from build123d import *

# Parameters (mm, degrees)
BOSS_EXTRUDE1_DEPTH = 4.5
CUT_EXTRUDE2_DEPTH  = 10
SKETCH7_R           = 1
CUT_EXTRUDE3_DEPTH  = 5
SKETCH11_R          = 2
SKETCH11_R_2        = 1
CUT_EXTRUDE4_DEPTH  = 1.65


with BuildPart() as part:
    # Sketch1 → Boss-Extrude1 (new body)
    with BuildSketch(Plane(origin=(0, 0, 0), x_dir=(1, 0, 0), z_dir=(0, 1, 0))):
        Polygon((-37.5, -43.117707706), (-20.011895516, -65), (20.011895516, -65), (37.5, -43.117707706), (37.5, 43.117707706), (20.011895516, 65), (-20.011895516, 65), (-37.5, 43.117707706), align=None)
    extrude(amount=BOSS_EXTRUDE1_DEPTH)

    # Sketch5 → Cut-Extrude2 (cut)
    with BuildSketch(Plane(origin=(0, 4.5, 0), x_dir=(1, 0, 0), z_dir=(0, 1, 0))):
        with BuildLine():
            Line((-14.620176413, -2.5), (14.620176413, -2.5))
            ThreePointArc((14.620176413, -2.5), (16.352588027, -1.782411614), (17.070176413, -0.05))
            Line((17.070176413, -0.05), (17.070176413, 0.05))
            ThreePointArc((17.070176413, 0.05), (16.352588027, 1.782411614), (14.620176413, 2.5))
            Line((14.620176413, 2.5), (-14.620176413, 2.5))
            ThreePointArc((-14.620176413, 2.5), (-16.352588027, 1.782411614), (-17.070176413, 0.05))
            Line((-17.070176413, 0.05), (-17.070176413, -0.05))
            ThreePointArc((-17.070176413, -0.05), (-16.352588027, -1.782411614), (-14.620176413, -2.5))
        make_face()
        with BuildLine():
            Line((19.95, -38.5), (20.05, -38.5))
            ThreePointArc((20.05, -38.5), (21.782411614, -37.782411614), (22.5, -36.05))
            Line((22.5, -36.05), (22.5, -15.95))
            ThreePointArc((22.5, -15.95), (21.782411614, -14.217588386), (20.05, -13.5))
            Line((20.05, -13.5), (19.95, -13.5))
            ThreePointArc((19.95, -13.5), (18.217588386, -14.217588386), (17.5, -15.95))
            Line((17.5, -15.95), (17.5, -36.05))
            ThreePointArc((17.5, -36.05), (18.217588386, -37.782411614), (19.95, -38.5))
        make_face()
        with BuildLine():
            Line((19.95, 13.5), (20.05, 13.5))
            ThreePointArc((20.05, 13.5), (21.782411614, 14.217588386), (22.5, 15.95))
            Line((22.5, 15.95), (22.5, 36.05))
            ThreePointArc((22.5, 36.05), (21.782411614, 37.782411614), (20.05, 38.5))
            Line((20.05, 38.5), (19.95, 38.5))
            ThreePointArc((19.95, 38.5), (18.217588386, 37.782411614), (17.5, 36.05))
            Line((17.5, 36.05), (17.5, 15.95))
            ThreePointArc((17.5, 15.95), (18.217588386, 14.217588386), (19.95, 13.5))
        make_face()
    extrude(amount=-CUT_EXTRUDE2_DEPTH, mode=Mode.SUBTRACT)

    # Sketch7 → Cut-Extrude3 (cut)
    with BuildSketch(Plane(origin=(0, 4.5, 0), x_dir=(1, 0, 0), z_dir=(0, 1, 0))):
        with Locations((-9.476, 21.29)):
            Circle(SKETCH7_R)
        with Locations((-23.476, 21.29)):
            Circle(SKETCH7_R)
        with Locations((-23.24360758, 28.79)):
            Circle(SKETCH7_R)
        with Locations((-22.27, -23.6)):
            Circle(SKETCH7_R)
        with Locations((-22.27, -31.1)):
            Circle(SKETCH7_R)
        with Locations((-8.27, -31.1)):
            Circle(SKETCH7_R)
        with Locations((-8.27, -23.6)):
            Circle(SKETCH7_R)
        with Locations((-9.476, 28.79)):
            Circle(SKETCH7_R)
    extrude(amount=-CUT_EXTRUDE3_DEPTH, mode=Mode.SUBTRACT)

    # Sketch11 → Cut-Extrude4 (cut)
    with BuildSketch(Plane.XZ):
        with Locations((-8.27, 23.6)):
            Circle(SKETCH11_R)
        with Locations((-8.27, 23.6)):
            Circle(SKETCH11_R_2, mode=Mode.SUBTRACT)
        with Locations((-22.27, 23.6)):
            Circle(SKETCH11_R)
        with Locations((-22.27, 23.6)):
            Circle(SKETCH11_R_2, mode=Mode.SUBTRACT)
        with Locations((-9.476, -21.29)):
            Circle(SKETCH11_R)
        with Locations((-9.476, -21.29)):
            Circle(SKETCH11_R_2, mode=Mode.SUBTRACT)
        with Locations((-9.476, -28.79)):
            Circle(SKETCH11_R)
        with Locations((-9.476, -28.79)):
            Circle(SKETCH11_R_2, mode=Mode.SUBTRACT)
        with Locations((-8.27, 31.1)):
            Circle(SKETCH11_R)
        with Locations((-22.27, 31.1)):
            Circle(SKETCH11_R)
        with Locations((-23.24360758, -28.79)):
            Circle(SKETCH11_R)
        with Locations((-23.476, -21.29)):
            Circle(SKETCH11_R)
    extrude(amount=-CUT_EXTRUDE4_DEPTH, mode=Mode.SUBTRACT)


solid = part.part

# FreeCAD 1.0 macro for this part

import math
import FreeCAD as App
import Part
import Sketcher
from FreeCAD import Vector
Q = App.Units.Quantity

doc = App.newDocument("Part")
body = doc.addObject("PartDesign::Body", "Body")

sketch1 = body.newObject("Sketcher::SketchObject", "Sketch")
sketch1.AttachmentSupport = (doc.getObject("XZ_Plane"), [""])
sketch1.MapMode = "FlatFace"
sketch1.addGeometry(Part.LineSegment(Vector(-38, 43, 0), Vector(-20, 65, 0)), False)
sketch1.addGeometry(Part.LineSegment(Vector(-20, 65, 0), Vector(20, 65, 0)), False)
sketch1.addGeometry(Part.LineSegment(Vector(20, 65, 0), Vector(38, 43, 0)), False)
sketch1.addGeometry(Part.LineSegment(Vector(38, 43, 0), Vector(38, -43, 0)), False)
sketch1.addGeometry(Part.LineSegment(Vector(38, -43, 0), Vector(20, -65, 0)), False)
sketch1.addGeometry(Part.LineSegment(Vector(20, -65, 0), Vector(-20, -65, 0)), False)
sketch1.addGeometry(Part.LineSegment(Vector(-20, -65, 0), Vector(-38, -43, 0)), False)
sketch1.addGeometry(Part.LineSegment(Vector(-38, -43, 0), Vector(-38, 43, 0)), False)
sketch1.addConstraint(Sketcher.Constraint("Coincident", 0, 2, 1, 1))
sketch1.addConstraint(Sketcher.Constraint("Coincident", 1, 2, 2, 1))
sketch1.addConstraint(Sketcher.Constraint("Coincident", 2, 2, 3, 1))
sketch1.addConstraint(Sketcher.Constraint("Coincident", 3, 2, 4, 1))
sketch1.addConstraint(Sketcher.Constraint("Coincident", 4, 2, 5, 1))
sketch1.addConstraint(Sketcher.Constraint("Coincident", 5, 2, 6, 1))
sketch1.addConstraint(Sketcher.Constraint("Coincident", 6, 2, 7, 1))
sketch1.addConstraint(Sketcher.Constraint("Coincident", 7, 2, 0, 1))
sketch1.addConstraint(Sketcher.Constraint("Horizontal", 1))
sketch1.addConstraint(Sketcher.Constraint("Vertical", 3))
sketch1.addConstraint(Sketcher.Constraint("Horizontal", 5))
sketch1.addConstraint(Sketcher.Constraint("Vertical", 7))
sketch1.addConstraint(Sketcher.Constraint("Symmetric", 0, 2, 4, 2, -1, 1))
sketch1.addConstraint(Sketcher.Constraint("Symmetric", 2, 2, 6, 2, -1, 1))
sketch1.addConstraint(Sketcher.Constraint("Parallel", 0, 4))
sketch1.addConstraint(Sketcher.Constraint("Parallel", 2, 6))
sketch1.addConstraint(Sketcher.Constraint("Horizontal", 3, 2, 6, 2))
sketch1.addConstraint(Sketcher.Constraint("Vertical", 1, 2, 4, 2))
sketch1.addConstraint(Sketcher.Constraint("DistanceY", -1, 1, 0, 2, Q("65 mm")))
sketch1.addConstraint(Sketcher.Constraint("DistanceX", 6, 2, 3, 2, Q("75 mm")))
sketch1.addConstraint(Sketcher.Constraint("DistanceX", 1, 1, 1, 2, Q("40.023791 mm")))
sketch1.addConstraint(Sketcher.Constraint("DistanceY", 3, 2, 3, 1, Q("86.235415 mm")))
pad1 = body.newObject("PartDesign::Pad", "Pad")
pad1.Profile = sketch1
pad1.Length = 4.5
pad1.Reversed = True

sketch2 = body.newObject("Sketcher::SketchObject", "Sketch001")
sketch2.AttachmentSupport = (doc.getObject("XZ_Plane"), [""])
sketch2.MapMode = "FlatFace"
sketch2.AttachmentOffset = App.Placement(Vector(0, 0, -4.5), App.Rotation())
sketch2.addGeometry(Part.LineSegment(Vector(-14.62, 2.5, 0), Vector(14.62, 2.5, 0)), False)
sketch2.addGeometry(Part.ArcOfCircle(Part.Circle(Vector(14.62, 0.05, 0), Vector(0, 0, 1), 2.45), math.radians(0), math.radians(90)), False)
sketch2.addGeometry(Part.LineSegment(Vector(17.07, 0.05, 0), Vector(17.07, -0.05, 0)), False)
sketch2.addGeometry(Part.ArcOfCircle(Part.Circle(Vector(14.62, -0.05, 0), Vector(0, 0, 1), 2.45), math.radians(-90), math.radians(0)), False)
sketch2.addGeometry(Part.LineSegment(Vector(14.62, -2.5, 0), Vector(-14.62, -2.5, 0)), False)
sketch2.addGeometry(Part.ArcOfCircle(Part.Circle(Vector(-14.62, -0.05, 0), Vector(0, 0, 1), 2.45), math.radians(180), math.radians(270)), False)
sketch2.addGeometry(Part.LineSegment(Vector(-17.07, -0.05, 0), Vector(-17.07, 0.05, 0)), False)
sketch2.addGeometry(Part.ArcOfCircle(Part.Circle(Vector(-14.62, 0.05, 0), Vector(0, 0, 1), 2.45), math.radians(90), math.radians(180)), False)
sketch2.addGeometry(Part.LineSegment(Vector(19.95, 38.5, 0), Vector(20.05, 38.5, 0)), False)
sketch2.addGeometry(Part.ArcOfCircle(Part.Circle(Vector(20.05, 36.05, 0), Vector(0, 0, 1), 2.45), math.radians(0), math.radians(90)), False)
sketch2.addGeometry(Part.LineSegment(Vector(22.5, 36.05, 0), Vector(22.5, 15.95, 0)), False)
sketch2.addGeometry(Part.ArcOfCircle(Part.Circle(Vector(20.05, 15.95, 0), Vector(0, 0, 1), 2.45), math.radians(-90), math.radians(0)), False)
sketch2.addGeometry(Part.LineSegment(Vector(20.05, 13.5, 0), Vector(19.95, 13.5, 0)), False)
sketch2.addGeometry(Part.ArcOfCircle(Part.Circle(Vector(19.95, 15.95, 0), Vector(0, 0, 1), 2.45), math.radians(180), math.radians(270)), False)
sketch2.addGeometry(Part.LineSegment(Vector(17.5, 15.95, 0), Vector(17.5, 36.05, 0)), False)
sketch2.addGeometry(Part.ArcOfCircle(Part.Circle(Vector(19.95, 36.05, 0), Vector(0, 0, 1), 2.45), math.radians(90), math.radians(180)), False)
sketch2.addGeometry(Part.LineSegment(Vector(19.95, -13.5, 0), Vector(20.05, -13.5, 0)), False)
sketch2.addGeometry(Part.ArcOfCircle(Part.Circle(Vector(20.05, -15.95, 0), Vector(0, 0, 1), 2.45), math.radians(0), math.radians(90)), False)
sketch2.addGeometry(Part.LineSegment(Vector(22.5, -15.95, 0), Vector(22.5, -36.05, 0)), False)
sketch2.addGeometry(Part.ArcOfCircle(Part.Circle(Vector(20.05, -36.05, 0), Vector(0, 0, 1), 2.45), math.radians(-90), math.radians(0)), False)
sketch2.addGeometry(Part.LineSegment(Vector(20.05, -38.5, 0), Vector(19.95, -38.5, 0)), False)
sketch2.addGeometry(Part.ArcOfCircle(Part.Circle(Vector(19.95, -36.05, 0), Vector(0, 0, 1), 2.45), math.radians(180), math.radians(270)), False)
sketch2.addGeometry(Part.LineSegment(Vector(17.5, -36.05, 0), Vector(17.5, -15.95, 0)), False)
sketch2.addGeometry(Part.ArcOfCircle(Part.Circle(Vector(19.95, -15.95, 0), Vector(0, 0, 1), 2.45), math.radians(90), math.radians(180)), False)
sketch2.addConstraint(Sketcher.Constraint("Tangent", 0, 2, 1, 2))
sketch2.addConstraint(Sketcher.Constraint("Tangent", 1, 1, 2, 1))
sketch2.addConstraint(Sketcher.Constraint("Tangent", 2, 2, 3, 2))
sketch2.addConstraint(Sketcher.Constraint("Tangent", 3, 1, 4, 1))
sketch2.addConstraint(Sketcher.Constraint("Tangent", 4, 2, 5, 2))
sketch2.addConstraint(Sketcher.Constraint("Tangent", 5, 1, 6, 1))
sketch2.addConstraint(Sketcher.Constraint("Tangent", 6, 2, 7, 2))
sketch2.addConstraint(Sketcher.Constraint("Tangent", 7, 1, 0, 1))
sketch2.addConstraint(Sketcher.Constraint("Tangent", 8, 2, 9, 2))
sketch2.addConstraint(Sketcher.Constraint("Tangent", 9, 1, 10, 1))
sketch2.addConstraint(Sketcher.Constraint("Tangent", 10, 2, 11, 2))
sketch2.addConstraint(Sketcher.Constraint("Tangent", 11, 1, 12, 1))
sketch2.addConstraint(Sketcher.Constraint("Tangent", 12, 2, 13, 2))
sketch2.addConstraint(Sketcher.Constraint("Tangent", 13, 1, 14, 1))
sketch2.addConstraint(Sketcher.Constraint("Tangent", 14, 2, 15, 2))
sketch2.addConstraint(Sketcher.Constraint("Tangent", 15, 1, 8, 1))
sketch2.addConstraint(Sketcher.Constraint("Tangent", 16, 2, 17, 2))
sketch2.addConstraint(Sketcher.Constraint("Tangent", 17, 1, 18, 1))
sketch2.addConstraint(Sketcher.Constraint("Tangent", 18, 2, 19, 2))
sketch2.addConstraint(Sketcher.Constraint("Tangent", 19, 1, 20, 1))
sketch2.addConstraint(Sketcher.Constraint("Tangent", 20, 2, 21, 2))
sketch2.addConstraint(Sketcher.Constraint("Tangent", 21, 1, 22, 1))
sketch2.addConstraint(Sketcher.Constraint("Tangent", 22, 2, 23, 2))
sketch2.addConstraint(Sketcher.Constraint("Tangent", 23, 1, 16, 1))
sketch2.addConstraint(Sketcher.Constraint("Horizontal", 0))
sketch2.addConstraint(Sketcher.Constraint("Vertical", 2))
sketch2.addConstraint(Sketcher.Constraint("Horizontal", 4))
sketch2.addConstraint(Sketcher.Constraint("Vertical", 6))
sketch2.addConstraint(Sketcher.Constraint("Horizontal", 8))
sketch2.addConstraint(Sketcher.Constraint("Vertical", 10))
sketch2.addConstraint(Sketcher.Constraint("Horizontal", 12))
sketch2.addConstraint(Sketcher.Constraint("Vertical", 14))
sketch2.addConstraint(Sketcher.Constraint("Horizontal", 16))
sketch2.addConstraint(Sketcher.Constraint("Vertical", 18))
sketch2.addConstraint(Sketcher.Constraint("Horizontal", 20))
sketch2.addConstraint(Sketcher.Constraint("Vertical", 22))
sketch2.addConstraint(Sketcher.Constraint("Equal", 1, 3))
sketch2.addConstraint(Sketcher.Constraint("Equal", 3, 5))
sketch2.addConstraint(Sketcher.Constraint("Equal", 5, 7))
sketch2.addConstraint(Sketcher.Constraint("Equal", 7, 9))
sketch2.addConstraint(Sketcher.Constraint("Equal", 9, 11))
sketch2.addConstraint(Sketcher.Constraint("Equal", 11, 13))
sketch2.addConstraint(Sketcher.Constraint("Equal", 13, 15))
sketch2.addConstraint(Sketcher.Constraint("Equal", 15, 17))
sketch2.addConstraint(Sketcher.Constraint("Equal", 17, 19))
sketch2.addConstraint(Sketcher.Constraint("Equal", 19, 21))
sketch2.addConstraint(Sketcher.Constraint("Equal", 21, 23))
sketch2.addConstraint(Sketcher.Constraint("Symmetric", 1, 3, 5, 3, -1, 1))
sketch2.addConstraint(Sketcher.Constraint("Symmetric", 11, 3, 17, 3, -1))
sketch2.addConstraint(Sketcher.Constraint("Symmetric", 15, 3, 21, 3, -1))
sketch2.addConstraint(Sketcher.Constraint("Equal", 20, 2))
sketch2.addConstraint(Sketcher.Constraint("Radius", 1, Q("2.45 mm")))
sketch2.addConstraint(Sketcher.Constraint("DistanceX", 8, 1, 8, 2, Q("0.1 mm")))
sketch2.addConstraint(Sketcher.Constraint("DistanceY", 10, 2, 10, 1, Q("20.1 mm")))
sketch2.addConstraint(Sketcher.Constraint("DistanceY", 1, 3, 9, 3, Q("36 mm")))
sketch2.addConstraint(Sketcher.Constraint("DistanceX", -1, 1, 9, 1, Q("22.5 mm")))
sketch2.addConstraint(Sketcher.Constraint("DistanceX", 0, 1, 0, 2, Q("29.240353 mm")))
pocket1 = body.newObject("PartDesign::Pocket", "Pocket")
pocket1.Profile = sketch2
pocket1.Length = 10
pocket1.Reversed = True

sketch3 = body.newObject("Sketcher::SketchObject", "Sketch002")
sketch3.AttachmentSupport = (doc.getObject("XZ_Plane"), [""])
sketch3.MapMode = "FlatFace"
sketch3.AttachmentOffset = App.Placement(Vector(0, 0, -4.5), App.Rotation())
sketch3.addGeometry(Part.Circle(Vector(-9.5, -21.3, 0), Vector(0, 0, 1), 1), False)
sketch3.addGeometry(Part.Circle(Vector(-23.5, -21.3, 0), Vector(0, 0, 1), 1), False)
sketch3.addGeometry(Part.Circle(Vector(-23.2, -28.8, 0), Vector(0, 0, 1), 1), False)
sketch3.addGeometry(Part.Circle(Vector(-22.3, 23.6, 0), Vector(0, 0, 1), 1), False)
sketch3.addGeometry(Part.Circle(Vector(-22.3, 31.1, 0), Vector(0, 0, 1), 1), False)
sketch3.addGeometry(Part.Circle(Vector(-8.3, 31.1, 0), Vector(0, 0, 1), 1), False)
sketch3.addGeometry(Part.Circle(Vector(-8.3, 23.6, 0), Vector(0, 0, 1), 1), False)
sketch3.addGeometry(Part.Circle(Vector(-9.5, -28.8, 0), Vector(0, 0, 1), 1), False)
sketch3.addConstraint(Sketcher.Constraint("Equal", 0, 1))
sketch3.addConstraint(Sketcher.Constraint("Equal", 1, 2))
sketch3.addConstraint(Sketcher.Constraint("Equal", 2, 3))
sketch3.addConstraint(Sketcher.Constraint("Equal", 3, 4))
sketch3.addConstraint(Sketcher.Constraint("Equal", 4, 5))
sketch3.addConstraint(Sketcher.Constraint("Equal", 5, 6))
sketch3.addConstraint(Sketcher.Constraint("Equal", 6, 7))
sketch3.addConstraint(Sketcher.Constraint("Horizontal", 0, 3, 1, 3))
sketch3.addConstraint(Sketcher.Constraint("Horizontal", 4, 3, 5, 3))
sketch3.addConstraint(Sketcher.Constraint("Horizontal", 3, 3, 6, 3))
sketch3.addConstraint(Sketcher.Constraint("Horizontal", 2, 3, 7, 3))
sketch3.addConstraint(Sketcher.Constraint("Vertical", 3, 3, 4, 3))
sketch3.addConstraint(Sketcher.Constraint("Vertical", 5, 3, 6, 3))
sketch3.addConstraint(Sketcher.Constraint("Vertical", 0, 3, 7, 3))
sketch3.addConstraint(Sketcher.Constraint("Diameter", 0, Q("2 mm")))
sketch3.addConstraint(Sketcher.Constraint("DistanceX", 1, 3, 0, 3, Q("14 mm")))
sketch3.addConstraint(Sketcher.Constraint("DistanceX", 4, 3, 5, 3, Q("14 mm")))
sketch3.addConstraint(Sketcher.Constraint("DistanceY", -1, 1, 3, 3, Q("23.6 mm")))
sketch3.addConstraint(Sketcher.Constraint("DistanceY", -1, 1, 4, 3, Q("31.1 mm")))
sketch3.addConstraint(Sketcher.Constraint("DistanceY", 2, 3, 1, 3, Q("7.5 mm")))
sketch3.addConstraint(Sketcher.Constraint("DistanceY", 0, 3, -1, 1, Q("21.29 mm")))
sketch3.addConstraint(Sketcher.Constraint("DistanceX", 3, 3, -1, 1, Q("22.27 mm")))
sketch3.addConstraint(Sketcher.Constraint("DistanceX", 0, 3, -1, 1, Q("9.476 mm")))
sketch3.addConstraint(Sketcher.Constraint("DistanceX", 2, 3, -1, 1, Q("23.243608 mm")))
pocket2 = body.newObject("PartDesign::Pocket", "Pocket001")
pocket2.Profile = sketch3
pocket2.Length = 5
pocket2.Reversed = True

sketch4 = body.newObject("Sketcher::SketchObject", "Sketch003")
sketch4.AttachmentSupport = (doc.getObject("XZ_Plane"), [""])
sketch4.MapMode = "FlatFace"
sketch4.addGeometry(Part.Circle(Vector(-8.3, 23.6, 0), Vector(0, 0, 1), 2), False)
sketch4.addGeometry(Part.Circle(Vector(-8.3, 23.6, 0), Vector(0, 0, 1), 1), False)
sketch4.addGeometry(Part.Circle(Vector(-22.3, 23.6, 0), Vector(0, 0, 1), 2), False)
sketch4.addGeometry(Part.Circle(Vector(-22.3, 23.6, 0), Vector(0, 0, 1), 1), False)
sketch4.addGeometry(Part.Circle(Vector(-9.5, -21.3, 0), Vector(0, 0, 1), 2), False)
sketch4.addGeometry(Part.Circle(Vector(-9.5, -21.3, 0), Vector(0, 0, 1), 1), False)
sketch4.addGeometry(Part.Circle(Vector(-9.5, -28.8, 0), Vector(0, 0, 1), 2), False)
sketch4.addGeometry(Part.Circle(Vector(-9.5, -28.8, 0), Vector(0, 0, 1), 1), False)
sketch4.addGeometry(Part.Circle(Vector(-8.3, 31.1, 0), Vector(0, 0, 1), 2), False)
sketch4.addGeometry(Part.Circle(Vector(-22.3, 31.1, 0), Vector(0, 0, 1), 2), False)
sketch4.addGeometry(Part.Circle(Vector(-23.2, -28.8, 0), Vector(0, 0, 1), 2), False)
sketch4.addGeometry(Part.Circle(Vector(-23.5, -21.3, 0), Vector(0, 0, 1), 2), False)
sketch4.addConstraint(Sketcher.Constraint("Coincident", 1, 3, 0, 3))
sketch4.addConstraint(Sketcher.Constraint("Coincident", 3, 3, 2, 3))
sketch4.addConstraint(Sketcher.Constraint("Coincident", 5, 3, 4, 3))
sketch4.addConstraint(Sketcher.Constraint("Coincident", 7, 3, 6, 3))
sketch4.addConstraint(Sketcher.Constraint("Equal", 0, 2))
sketch4.addConstraint(Sketcher.Constraint("Equal", 1, 3))
sketch4.addConstraint(Sketcher.Constraint("Equal", 2, 4))
sketch4.addConstraint(Sketcher.Constraint("Equal", 3, 5))
sketch4.addConstraint(Sketcher.Constraint("Equal", 4, 6))
sketch4.addConstraint(Sketcher.Constraint("Equal", 5, 7))
sketch4.addConstraint(Sketcher.Constraint("Equal", 6, 8))
sketch4.addConstraint(Sketcher.Constraint("Equal", 8, 9))
sketch4.addConstraint(Sketcher.Constraint("Equal", 9, 10))
sketch4.addConstraint(Sketcher.Constraint("Equal", 10, 11))
sketch4.addConstraint(Sketcher.Constraint("Horizontal", 1, 3, 2, 3))
sketch4.addConstraint(Sketcher.Constraint("Horizontal", 8, 3, 9, 3))
sketch4.addConstraint(Sketcher.Constraint("Horizontal", 7, 3, 10, 3))
sketch4.addConstraint(Sketcher.Constraint("Horizontal", 5, 3, 11, 3))
sketch4.addConstraint(Sketcher.Constraint("Vertical", 5, 3, 6, 3))
sketch4.addConstraint(Sketcher.Constraint("Vertical", 1, 3, 8, 3))
sketch4.addConstraint(Sketcher.Constraint("Vertical", 3, 3, 9, 3))
sketch4.addConstraint(Sketcher.Constraint("Diameter", 0, Q("4 mm")))
sketch4.addConstraint(Sketcher.Constraint("Diameter", 1, Q("2 mm")))
sketch4.addConstraint(Sketcher.Constraint("DistanceX", 2, 3, 0, 3, Q("14 mm")))
sketch4.addConstraint(Sketcher.Constraint("DistanceX", 11, 3, 4, 3, Q("14 mm")))
sketch4.addConstraint(Sketcher.Constraint("DistanceY", -1, 1, 0, 3, Q("23.6 mm")))
sketch4.addConstraint(Sketcher.Constraint("DistanceY", -1, 1, 8, 3, Q("31.1 mm")))
sketch4.addConstraint(Sketcher.Constraint("DistanceY", 6, 3, 4, 3, Q("7.5 mm")))
sketch4.addConstraint(Sketcher.Constraint("DistanceX", 0, 3, -1, 1, Q("8.27 mm")))
sketch4.addConstraint(Sketcher.Constraint("DistanceY", 4, 3, -1, 1, Q("21.29 mm")))
sketch4.addConstraint(Sketcher.Constraint("DistanceX", 4, 3, -1, 1, Q("9.476 mm")))
sketch4.addConstraint(Sketcher.Constraint("DistanceX", 10, 3, -1, 1, Q("23.243608 mm")))
pocket3 = body.newObject("PartDesign::Pocket", "Pocket002")
pocket3.Profile = sketch4
pocket3.Length = 1.65

doc.recompute()
